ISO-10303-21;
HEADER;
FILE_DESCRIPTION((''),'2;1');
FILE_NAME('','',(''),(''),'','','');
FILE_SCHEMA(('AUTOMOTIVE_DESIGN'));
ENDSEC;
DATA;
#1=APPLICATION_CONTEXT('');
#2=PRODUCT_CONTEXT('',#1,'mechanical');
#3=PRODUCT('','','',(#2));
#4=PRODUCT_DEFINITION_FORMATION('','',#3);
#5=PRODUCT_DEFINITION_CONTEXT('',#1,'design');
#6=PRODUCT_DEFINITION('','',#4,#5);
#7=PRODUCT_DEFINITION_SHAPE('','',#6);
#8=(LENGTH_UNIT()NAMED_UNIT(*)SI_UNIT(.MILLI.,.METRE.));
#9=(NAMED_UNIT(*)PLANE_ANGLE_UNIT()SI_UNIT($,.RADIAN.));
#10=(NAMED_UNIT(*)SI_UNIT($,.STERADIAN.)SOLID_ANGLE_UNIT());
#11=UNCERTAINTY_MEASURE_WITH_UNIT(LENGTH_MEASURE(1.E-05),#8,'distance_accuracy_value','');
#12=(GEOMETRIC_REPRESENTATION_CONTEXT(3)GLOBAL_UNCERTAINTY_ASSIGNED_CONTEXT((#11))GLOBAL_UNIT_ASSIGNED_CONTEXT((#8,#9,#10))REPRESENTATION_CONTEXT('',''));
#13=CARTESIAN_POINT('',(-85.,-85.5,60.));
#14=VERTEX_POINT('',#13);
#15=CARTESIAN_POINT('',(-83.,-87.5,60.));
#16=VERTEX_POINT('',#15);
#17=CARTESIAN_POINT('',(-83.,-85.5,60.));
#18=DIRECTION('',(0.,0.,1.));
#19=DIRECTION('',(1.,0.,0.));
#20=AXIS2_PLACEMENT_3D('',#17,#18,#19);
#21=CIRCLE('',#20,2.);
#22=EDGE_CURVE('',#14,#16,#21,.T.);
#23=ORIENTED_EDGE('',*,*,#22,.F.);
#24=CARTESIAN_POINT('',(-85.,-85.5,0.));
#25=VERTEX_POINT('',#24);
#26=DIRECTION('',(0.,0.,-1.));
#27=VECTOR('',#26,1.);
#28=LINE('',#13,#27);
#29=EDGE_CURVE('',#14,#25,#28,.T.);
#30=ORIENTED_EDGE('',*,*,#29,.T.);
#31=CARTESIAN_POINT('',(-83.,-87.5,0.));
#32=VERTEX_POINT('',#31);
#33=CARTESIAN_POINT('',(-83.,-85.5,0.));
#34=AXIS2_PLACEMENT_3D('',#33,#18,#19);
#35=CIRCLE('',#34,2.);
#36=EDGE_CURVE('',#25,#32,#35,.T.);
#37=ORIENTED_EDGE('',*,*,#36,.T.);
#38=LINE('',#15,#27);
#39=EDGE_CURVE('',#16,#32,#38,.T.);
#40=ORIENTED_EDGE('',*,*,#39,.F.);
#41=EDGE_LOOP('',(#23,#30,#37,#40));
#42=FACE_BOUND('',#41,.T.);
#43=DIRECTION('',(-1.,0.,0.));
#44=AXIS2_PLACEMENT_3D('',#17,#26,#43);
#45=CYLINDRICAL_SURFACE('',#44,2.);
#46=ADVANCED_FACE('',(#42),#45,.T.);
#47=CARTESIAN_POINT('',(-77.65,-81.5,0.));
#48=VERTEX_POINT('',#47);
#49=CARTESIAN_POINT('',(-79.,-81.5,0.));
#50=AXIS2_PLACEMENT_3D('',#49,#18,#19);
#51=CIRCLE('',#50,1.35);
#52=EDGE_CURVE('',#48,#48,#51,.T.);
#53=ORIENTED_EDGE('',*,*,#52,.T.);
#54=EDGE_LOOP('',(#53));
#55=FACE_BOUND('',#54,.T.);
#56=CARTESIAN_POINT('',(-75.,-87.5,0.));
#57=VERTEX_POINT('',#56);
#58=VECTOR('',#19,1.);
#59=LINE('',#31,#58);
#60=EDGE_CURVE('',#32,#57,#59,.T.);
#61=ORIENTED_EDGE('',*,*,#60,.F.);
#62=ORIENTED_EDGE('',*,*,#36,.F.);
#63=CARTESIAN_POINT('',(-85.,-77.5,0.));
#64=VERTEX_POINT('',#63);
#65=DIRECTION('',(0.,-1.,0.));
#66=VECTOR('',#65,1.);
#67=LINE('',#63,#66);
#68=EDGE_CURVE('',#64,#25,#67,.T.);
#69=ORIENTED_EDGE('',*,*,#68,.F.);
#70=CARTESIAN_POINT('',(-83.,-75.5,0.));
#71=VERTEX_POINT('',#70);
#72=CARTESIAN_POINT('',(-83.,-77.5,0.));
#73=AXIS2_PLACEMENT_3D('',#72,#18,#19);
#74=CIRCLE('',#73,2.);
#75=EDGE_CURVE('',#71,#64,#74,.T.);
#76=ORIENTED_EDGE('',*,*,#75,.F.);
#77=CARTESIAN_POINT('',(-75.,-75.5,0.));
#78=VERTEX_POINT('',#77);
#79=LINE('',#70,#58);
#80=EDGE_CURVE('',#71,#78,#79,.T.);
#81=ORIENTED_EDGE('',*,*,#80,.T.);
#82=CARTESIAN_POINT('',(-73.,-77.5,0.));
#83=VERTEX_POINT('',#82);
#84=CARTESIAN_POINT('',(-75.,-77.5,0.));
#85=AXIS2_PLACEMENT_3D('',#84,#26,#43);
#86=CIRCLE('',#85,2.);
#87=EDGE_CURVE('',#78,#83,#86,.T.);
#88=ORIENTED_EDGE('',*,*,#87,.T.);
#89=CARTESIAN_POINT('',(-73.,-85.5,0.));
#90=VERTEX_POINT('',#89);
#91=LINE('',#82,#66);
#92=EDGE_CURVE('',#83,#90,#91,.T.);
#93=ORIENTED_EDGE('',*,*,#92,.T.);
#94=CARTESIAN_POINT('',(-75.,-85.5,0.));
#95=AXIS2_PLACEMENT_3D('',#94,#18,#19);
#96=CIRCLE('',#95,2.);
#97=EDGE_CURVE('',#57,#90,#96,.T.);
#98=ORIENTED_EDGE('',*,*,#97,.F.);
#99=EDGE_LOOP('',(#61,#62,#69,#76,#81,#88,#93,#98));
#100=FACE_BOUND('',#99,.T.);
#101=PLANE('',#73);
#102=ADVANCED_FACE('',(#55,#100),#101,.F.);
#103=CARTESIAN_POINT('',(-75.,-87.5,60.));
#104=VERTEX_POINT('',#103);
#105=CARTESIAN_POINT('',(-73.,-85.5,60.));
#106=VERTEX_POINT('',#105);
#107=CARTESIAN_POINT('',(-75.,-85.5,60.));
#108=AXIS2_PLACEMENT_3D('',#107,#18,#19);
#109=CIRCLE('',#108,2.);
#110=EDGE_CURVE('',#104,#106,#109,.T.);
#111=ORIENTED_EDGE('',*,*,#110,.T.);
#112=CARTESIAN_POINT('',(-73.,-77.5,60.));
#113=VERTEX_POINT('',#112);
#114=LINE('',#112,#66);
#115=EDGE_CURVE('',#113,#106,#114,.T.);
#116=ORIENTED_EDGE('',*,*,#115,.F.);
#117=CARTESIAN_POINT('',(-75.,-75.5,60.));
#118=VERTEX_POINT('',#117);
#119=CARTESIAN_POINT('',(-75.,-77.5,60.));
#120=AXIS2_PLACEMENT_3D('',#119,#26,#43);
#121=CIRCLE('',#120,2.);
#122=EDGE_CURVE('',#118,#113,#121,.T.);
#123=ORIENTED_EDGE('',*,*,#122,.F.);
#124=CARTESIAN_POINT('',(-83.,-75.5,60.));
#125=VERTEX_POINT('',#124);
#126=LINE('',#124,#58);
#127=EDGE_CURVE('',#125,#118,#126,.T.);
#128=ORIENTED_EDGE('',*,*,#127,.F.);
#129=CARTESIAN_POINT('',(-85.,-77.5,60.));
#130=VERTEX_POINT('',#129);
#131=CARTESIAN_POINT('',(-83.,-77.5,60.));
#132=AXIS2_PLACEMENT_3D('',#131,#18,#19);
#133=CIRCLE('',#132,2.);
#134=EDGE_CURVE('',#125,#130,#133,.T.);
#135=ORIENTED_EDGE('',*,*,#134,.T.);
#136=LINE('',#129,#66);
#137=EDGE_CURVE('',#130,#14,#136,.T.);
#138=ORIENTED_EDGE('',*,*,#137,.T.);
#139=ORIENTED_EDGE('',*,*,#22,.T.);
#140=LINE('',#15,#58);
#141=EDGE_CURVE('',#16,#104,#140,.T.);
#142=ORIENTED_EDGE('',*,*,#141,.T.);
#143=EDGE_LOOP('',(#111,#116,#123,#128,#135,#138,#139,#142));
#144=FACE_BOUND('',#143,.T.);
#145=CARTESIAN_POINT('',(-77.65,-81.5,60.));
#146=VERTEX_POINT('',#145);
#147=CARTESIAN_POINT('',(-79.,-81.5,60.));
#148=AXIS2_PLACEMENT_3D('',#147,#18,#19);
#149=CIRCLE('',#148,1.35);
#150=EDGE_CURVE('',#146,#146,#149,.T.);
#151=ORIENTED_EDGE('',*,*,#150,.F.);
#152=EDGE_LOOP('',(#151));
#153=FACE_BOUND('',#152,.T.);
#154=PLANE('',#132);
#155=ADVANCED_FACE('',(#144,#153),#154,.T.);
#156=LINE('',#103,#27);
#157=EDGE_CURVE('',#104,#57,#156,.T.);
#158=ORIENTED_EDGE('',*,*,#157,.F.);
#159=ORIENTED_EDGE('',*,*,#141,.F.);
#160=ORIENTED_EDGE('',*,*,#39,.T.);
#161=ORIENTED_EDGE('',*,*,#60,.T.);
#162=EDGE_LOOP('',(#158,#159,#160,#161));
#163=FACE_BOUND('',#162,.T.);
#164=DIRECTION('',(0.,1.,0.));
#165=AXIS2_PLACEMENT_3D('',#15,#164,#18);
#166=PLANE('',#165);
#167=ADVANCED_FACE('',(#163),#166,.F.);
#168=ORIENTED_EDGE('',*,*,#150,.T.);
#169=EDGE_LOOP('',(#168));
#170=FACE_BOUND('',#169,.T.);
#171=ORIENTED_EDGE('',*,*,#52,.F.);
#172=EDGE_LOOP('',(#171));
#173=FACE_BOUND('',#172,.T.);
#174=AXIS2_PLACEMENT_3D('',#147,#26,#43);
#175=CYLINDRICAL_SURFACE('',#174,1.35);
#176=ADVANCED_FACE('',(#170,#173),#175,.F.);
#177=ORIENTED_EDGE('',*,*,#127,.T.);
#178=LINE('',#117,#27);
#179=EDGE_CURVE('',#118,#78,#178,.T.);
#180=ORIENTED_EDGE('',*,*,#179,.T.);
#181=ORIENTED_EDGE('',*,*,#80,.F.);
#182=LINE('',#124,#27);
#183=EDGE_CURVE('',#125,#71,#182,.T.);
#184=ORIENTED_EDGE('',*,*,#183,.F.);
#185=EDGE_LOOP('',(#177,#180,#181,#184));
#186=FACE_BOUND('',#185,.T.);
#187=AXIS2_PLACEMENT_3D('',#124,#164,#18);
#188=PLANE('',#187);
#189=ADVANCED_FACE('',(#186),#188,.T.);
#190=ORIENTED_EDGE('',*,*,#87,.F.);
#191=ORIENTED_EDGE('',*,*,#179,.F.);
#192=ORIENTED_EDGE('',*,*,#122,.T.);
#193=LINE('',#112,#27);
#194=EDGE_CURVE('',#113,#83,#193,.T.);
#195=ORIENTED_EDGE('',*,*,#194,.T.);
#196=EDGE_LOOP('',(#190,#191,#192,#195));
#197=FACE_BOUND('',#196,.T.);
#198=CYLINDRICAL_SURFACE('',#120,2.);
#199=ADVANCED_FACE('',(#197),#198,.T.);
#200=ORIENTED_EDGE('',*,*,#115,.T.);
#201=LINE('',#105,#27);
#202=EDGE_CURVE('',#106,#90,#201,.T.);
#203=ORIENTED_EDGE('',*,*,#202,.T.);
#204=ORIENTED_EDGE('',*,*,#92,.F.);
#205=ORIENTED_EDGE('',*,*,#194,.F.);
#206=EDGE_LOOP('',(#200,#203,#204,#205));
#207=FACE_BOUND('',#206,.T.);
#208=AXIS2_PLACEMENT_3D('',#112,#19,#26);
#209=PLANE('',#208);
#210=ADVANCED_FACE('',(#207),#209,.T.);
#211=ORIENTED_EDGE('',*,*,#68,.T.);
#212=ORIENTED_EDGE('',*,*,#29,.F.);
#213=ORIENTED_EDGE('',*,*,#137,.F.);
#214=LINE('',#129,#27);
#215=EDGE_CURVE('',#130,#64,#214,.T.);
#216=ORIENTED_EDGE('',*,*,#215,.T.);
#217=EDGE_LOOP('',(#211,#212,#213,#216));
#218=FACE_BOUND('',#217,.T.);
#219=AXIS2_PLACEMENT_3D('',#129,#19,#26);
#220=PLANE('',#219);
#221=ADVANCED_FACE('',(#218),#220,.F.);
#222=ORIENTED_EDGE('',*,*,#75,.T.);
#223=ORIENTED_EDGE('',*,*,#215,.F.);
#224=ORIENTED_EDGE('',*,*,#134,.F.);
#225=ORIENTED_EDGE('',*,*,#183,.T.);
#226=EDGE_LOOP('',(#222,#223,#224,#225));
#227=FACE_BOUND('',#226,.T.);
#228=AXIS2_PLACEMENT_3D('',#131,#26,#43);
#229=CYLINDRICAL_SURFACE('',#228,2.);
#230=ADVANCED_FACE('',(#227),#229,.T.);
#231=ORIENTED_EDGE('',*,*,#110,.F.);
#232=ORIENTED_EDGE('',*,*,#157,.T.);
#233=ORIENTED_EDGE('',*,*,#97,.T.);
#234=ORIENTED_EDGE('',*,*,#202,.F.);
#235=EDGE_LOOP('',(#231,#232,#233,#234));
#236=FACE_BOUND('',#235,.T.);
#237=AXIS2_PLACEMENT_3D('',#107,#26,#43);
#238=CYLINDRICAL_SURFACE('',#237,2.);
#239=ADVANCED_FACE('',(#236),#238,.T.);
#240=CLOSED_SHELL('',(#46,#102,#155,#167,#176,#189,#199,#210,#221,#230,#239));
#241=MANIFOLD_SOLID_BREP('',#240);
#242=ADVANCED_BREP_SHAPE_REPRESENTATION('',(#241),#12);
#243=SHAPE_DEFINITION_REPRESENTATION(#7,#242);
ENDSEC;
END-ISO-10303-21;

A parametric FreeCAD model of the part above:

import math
import FreeCAD as App
import Part
import Sketcher

V = App.Vector

doc = App.newDocument("Part")
body = doc.addObject("PartDesign::Body", "Body")

# Sketch on XY plane
sketch1 = body.newObject("Sketcher::SketchObject", "Sketch")
sketch1.AttachmentSupport = (doc.getObject("XY_Plane"), [""])
sketch1.MapMode = "FlatFace"
sketch1.addGeometry(Part.LineSegment(V(-75, -75.5, 0), V(-83, -75.5, 0)), False)
sketch1.addGeometry(Part.ArcOfCircle(Part.Circle(V(-83, -77.5, 0), V(0, 0, 1), 2), math.radians(90), math.radians(180)), False)
sketch1.addGeometry(Part.LineSegment(V(-85, -77.5, 0), V(-85, -85.5, 0)), False)
sketch1.addGeometry(Part.ArcOfCircle(Part.Circle(V(-83, -85.5, 0), V(0, 0, 1), 2), math.radians(-180), math.radians(-90)), False)
sketch1.addGeometry(Part.LineSegment(V(-83, -87.5, 0), V(-75, -87.5, 0)), False)
sketch1.addGeometry(Part.ArcOfCircle(Part.Circle(V(-75, -85.5, 0), V(0, 0, 1), 2), math.radians(-90), math.radians(0)), False)
sketch1.addGeometry(Part.LineSegment(V(-73, -85.5, 0), V(-73, -77.5, 0)), False)
sketch1.addGeometry(Part.ArcOfCircle(Part.Circle(V(-75, -77.5, 0), V(0, 0, 1), 2), math.radians(0), math.radians(90)), False)
sketch1.addGeometry(Part.Circle(V(-79, -81.5, 0), V(0, 0, 1), 1.4), False)
sketch1.addConstraint(Sketcher.Constraint("Tangent", 0, 2, 1, 1))
sketch1.addConstraint(Sketcher.Constraint("Tangent", 1, 2, 2, 1))
sketch1.addConstraint(Sketcher.Constraint("Tangent", 2, 2, 3, 1))
sketch1.addConstraint(Sketcher.Constraint("Tangent", 3, 2, 4, 1))
sketch1.addConstraint(Sketcher.Constraint("Tangent", 4, 2, 5, 1))
sketch1.addConstraint(Sketcher.Constraint("Tangent", 5, 2, 6, 1))
sketch1.addConstraint(Sketcher.Constraint("Tangent", 6, 2, 7, 1))
sketch1.addConstraint(Sketcher.Constraint("Tangent", 7, 2, 0, 1))
sketch1.addConstraint(Sketcher.Constraint("Horizontal", 0))
sketch1.addConstraint(Sketcher.Constraint("Vertical", 2))
sketch1.addConstraint(Sketcher.Constraint("Horizontal", 4))
sketch1.addConstraint(Sketcher.Constraint("Vertical", 6))
sketch1.addConstraint(Sketcher.Constraint("Equal", 1, 3))
sketch1.addConstraint(Sketcher.Constraint("Equal", 3, 5))
sketch1.addConstraint(Sketcher.Constraint("Equal", 5, 7))
sketch1.addConstraint(Sketcher.Constraint("Equal", 4, 2))
sketch1.addConstraint(Sketcher.Constraint("Radius", 1, 2.0))
sketch1.addConstraint(Sketcher.Constraint("Diameter", 8, 2.7))
sketch1.addConstraint(Sketcher.Constraint("DistanceX", 0, 2, 0, 1, 8.0))
sketch1.addConstraint(Sketcher.Constraint("DistanceX", 1, 3, -1, 1, 83.0))
sketch1.addConstraint(Sketcher.Constraint("DistanceX", 8, 3, -1, 1, 79.0))
sketch1.addConstraint(Sketcher.Constraint("DistanceY", 8, 3, 1, 3, 4.0))
sketch1.addConstraint(Sketcher.Constraint("DistanceY", 1, 3, -1, 1, 77.5))
pad1 = body.newObject("PartDesign::Pad", "Pad")
pad1.Profile = sketch1
pad1.Length = 60

doc.recompute()
